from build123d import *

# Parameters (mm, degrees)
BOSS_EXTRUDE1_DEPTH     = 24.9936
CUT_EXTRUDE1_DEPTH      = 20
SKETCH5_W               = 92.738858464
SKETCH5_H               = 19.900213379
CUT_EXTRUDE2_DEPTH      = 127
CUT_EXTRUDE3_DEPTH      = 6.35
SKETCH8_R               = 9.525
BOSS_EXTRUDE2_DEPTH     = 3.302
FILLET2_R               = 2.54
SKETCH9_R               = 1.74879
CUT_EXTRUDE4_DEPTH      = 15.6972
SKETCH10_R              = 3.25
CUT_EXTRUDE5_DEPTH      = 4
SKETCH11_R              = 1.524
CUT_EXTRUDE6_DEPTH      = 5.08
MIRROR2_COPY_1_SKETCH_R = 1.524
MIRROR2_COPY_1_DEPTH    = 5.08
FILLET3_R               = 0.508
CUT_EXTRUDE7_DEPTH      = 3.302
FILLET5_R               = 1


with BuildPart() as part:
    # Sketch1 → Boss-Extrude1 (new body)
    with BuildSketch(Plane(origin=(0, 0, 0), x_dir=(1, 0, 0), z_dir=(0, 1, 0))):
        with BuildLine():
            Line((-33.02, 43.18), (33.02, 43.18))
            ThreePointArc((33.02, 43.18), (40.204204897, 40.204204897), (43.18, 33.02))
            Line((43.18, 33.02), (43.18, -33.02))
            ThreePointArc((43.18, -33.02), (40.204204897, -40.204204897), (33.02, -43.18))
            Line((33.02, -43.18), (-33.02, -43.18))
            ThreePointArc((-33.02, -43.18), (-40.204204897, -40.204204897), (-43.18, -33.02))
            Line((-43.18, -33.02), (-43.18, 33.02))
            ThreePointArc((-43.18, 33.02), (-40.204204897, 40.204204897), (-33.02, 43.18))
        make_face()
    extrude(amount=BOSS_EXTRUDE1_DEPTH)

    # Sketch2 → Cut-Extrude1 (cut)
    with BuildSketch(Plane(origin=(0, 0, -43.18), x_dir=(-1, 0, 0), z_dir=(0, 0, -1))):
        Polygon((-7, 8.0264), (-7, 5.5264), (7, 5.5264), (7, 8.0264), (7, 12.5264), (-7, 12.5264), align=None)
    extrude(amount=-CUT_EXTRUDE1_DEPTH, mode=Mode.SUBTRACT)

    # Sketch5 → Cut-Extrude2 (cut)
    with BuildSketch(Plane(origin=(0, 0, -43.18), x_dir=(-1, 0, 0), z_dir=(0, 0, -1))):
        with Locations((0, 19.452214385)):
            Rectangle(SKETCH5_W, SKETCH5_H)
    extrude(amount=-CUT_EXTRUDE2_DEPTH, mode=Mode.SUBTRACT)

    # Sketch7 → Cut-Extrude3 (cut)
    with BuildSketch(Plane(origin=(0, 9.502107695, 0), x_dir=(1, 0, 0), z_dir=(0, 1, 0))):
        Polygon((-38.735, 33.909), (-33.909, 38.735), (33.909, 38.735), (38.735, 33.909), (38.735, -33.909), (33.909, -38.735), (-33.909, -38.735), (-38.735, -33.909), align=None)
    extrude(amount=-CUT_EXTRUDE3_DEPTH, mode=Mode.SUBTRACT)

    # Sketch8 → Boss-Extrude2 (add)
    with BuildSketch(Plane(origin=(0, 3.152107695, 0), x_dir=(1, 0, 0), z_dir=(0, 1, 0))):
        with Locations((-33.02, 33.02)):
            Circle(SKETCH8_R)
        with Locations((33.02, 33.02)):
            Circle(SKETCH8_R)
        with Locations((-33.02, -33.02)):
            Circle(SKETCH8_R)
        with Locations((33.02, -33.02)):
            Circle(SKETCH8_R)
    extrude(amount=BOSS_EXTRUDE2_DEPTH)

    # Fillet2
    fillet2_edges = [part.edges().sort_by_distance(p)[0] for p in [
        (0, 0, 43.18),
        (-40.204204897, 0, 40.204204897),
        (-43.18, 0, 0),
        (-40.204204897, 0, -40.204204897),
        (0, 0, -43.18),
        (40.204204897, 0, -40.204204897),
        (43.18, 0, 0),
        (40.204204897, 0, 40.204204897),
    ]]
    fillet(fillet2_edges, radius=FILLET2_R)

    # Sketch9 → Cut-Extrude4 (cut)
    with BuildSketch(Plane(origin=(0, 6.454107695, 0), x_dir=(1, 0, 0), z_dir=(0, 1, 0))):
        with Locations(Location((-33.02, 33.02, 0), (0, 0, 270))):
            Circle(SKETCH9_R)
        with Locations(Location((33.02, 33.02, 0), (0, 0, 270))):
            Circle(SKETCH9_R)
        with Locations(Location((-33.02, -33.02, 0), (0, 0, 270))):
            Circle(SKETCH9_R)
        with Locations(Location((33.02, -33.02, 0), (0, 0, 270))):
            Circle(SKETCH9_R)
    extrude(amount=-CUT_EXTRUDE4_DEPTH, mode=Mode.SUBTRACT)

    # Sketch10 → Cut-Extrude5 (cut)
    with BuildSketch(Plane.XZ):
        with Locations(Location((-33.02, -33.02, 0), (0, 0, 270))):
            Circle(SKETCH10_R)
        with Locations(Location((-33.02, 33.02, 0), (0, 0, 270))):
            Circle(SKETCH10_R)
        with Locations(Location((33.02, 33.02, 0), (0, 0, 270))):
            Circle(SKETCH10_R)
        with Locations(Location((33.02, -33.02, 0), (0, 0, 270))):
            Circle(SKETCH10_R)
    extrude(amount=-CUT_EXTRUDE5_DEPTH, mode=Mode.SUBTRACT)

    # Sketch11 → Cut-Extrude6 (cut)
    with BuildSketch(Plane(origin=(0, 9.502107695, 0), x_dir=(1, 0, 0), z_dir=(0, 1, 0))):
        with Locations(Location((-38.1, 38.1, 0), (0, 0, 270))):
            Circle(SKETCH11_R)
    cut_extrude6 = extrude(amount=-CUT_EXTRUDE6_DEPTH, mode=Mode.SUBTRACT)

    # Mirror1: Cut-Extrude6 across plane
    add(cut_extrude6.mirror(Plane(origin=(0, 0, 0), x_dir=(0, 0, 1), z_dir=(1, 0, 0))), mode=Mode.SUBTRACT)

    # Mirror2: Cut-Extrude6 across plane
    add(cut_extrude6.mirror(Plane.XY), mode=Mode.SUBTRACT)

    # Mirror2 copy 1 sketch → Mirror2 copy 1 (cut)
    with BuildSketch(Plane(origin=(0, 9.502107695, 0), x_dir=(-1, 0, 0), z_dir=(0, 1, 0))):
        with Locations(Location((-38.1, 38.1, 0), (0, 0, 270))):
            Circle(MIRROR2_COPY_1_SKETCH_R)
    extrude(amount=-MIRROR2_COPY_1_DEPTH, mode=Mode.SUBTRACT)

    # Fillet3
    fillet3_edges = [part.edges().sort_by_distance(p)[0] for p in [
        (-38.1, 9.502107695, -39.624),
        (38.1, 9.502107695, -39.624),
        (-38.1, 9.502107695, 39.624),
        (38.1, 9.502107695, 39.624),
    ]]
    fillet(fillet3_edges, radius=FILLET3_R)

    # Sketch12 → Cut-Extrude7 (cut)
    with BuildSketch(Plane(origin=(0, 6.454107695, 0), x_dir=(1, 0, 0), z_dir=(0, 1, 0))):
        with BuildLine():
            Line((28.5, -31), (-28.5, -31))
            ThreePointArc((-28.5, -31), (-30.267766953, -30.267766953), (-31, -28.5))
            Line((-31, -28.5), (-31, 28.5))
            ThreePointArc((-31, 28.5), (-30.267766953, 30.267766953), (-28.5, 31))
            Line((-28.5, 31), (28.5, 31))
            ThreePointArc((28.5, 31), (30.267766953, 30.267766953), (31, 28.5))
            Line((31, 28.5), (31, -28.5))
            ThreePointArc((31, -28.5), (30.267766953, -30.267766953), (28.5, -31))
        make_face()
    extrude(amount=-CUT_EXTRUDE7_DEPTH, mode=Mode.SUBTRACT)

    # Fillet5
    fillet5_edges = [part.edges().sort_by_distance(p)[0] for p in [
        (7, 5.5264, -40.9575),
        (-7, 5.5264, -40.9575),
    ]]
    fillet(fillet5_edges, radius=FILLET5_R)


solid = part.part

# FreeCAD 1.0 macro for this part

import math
import FreeCAD as App
import Part
import Sketcher
Q = App.Units.Quantity


def edges_at(feature, points):
    """Names of the edges that pass closest to the given points."""
    edges = feature.Shape.Edges
    near = lambda p: min(range(len(edges)), key=lambda i: edges[i].distToShape(Part.Vertex(*p))[0])
    return sorted({f"Edge{near(p) + 1}" for p in points})

doc = App.newDocument("Part")
body = doc.addObject("PartDesign::Body", "Body")

sketch1 = body.newObject("Sketcher::SketchObject", "Sketch")
sketch1.AttachmentSupport = (doc.getObject("XZ_Plane"), [""])
sketch1.MapMode = "FlatFace"
sketch1.addGeometry(Part.LineSegment(App.Vector(33, -43, 0), App.Vector(-33, -43, 0)), False)
sketch1.addGeometry(Part.ArcOfCircle(Part.Circle(App.Vector(-33, -33, 0), App.Vector(0, 0, 1), 10), math.radians(180), math.radians(270)), False)
sketch1.addGeometry(Part.LineSegment(App.Vector(-43, -33, 0), App.Vector(-43, 33, 0)), False)
sketch1.addGeometry(Part.ArcOfCircle(Part.Circle(App.Vector(-33, 33, 0), App.Vector(0, 0, 1), 10), math.radians(90), math.radians(180)), False)
sketch1.addGeometry(Part.LineSegment(App.Vector(-33, 43, 0), App.Vector(33, 43, 0)), False)
sketch1.addGeometry(Part.ArcOfCircle(Part.Circle(App.Vector(33, 33, 0), App.Vector(0, 0, 1), 10), math.radians(0), math.radians(90)), False)
sketch1.addGeometry(Part.LineSegment(App.Vector(43, 33, 0), App.Vector(43, -33, 0)), False)
sketch1.addGeometry(Part.ArcOfCircle(Part.Circle(App.Vector(33, -33, 0), App.Vector(0, 0, 1), 10), math.radians(-90), math.radians(0)), False)
sketch1.addConstraint(Sketcher.Constraint("Tangent", 0, 2, 1, 2))
sketch1.addConstraint(Sketcher.Constraint("Tangent", 1, 1, 2, 1))
sketch1.addConstraint(Sketcher.Constraint("Tangent", 2, 2, 3, 2))
sketch1.addConstraint(Sketcher.Constraint("Tangent", 3, 1, 4, 1))
sketch1.addConstraint(Sketcher.Constraint("Tangent", 4, 2, 5, 2))
sketch1.addConstraint(Sketcher.Constraint("Tangent", 5, 1, 6, 1))
sketch1.addConstraint(Sketcher.Constraint("Tangent", 6, 2, 7, 2))
sketch1.addConstraint(Sketcher.Constraint("Tangent", 7, 1, 0, 1))
sketch1.addConstraint(Sketcher.Constraint("Horizontal", 0))
sketch1.addConstraint(Sketcher.Constraint("Vertical", 2))
sketch1.addConstraint(Sketcher.Constraint("Horizontal", 4))
sketch1.addConstraint(Sketcher.Constraint("Vertical", 6))
sketch1.addConstraint(Sketcher.Constraint("Equal", 1, 3))
sketch1.addConstraint(Sketcher.Constraint("Equal", 3, 5))
sketch1.addConstraint(Sketcher.Constraint("Equal", 5, 7))
sketch1.addConstraint(Sketcher.Constraint("Symmetric", 1, 3, 5, 3, -1, 1))
sketch1.addConstraint(Sketcher.Constraint("Equal", 4, 2))
sketch1.addConstraint(Sketcher.Constraint("Radius", 1, Q("0.4 in")))
sketch1.addConstraint(Sketcher.Constraint("DistanceX", 0, 2, 0, 1, Q("2.6 in")))
pad1 = body.newObject("PartDesign::Pad", "Pad")
pad1.Profile = sketch1
pad1.Length = Q("0.984 in")
pad1.Reversed = True

sketch2 = body.newObject("Sketcher::SketchObject", "Sketch001")
sketch2.AttachmentSupport = (doc.getObject("XY_Plane"), [""])
sketch2.MapMode = "FlatFace"
sketch2.AttachmentOffset = App.Placement(App.Vector(0, 0, -1.7 * 25.4), App.Rotation())
sketch2.addGeometry(Part.LineSegment(App.Vector(7, 6, 0), App.Vector(-7, 6, 0)), False)
sketch2.addGeometry(Part.LineSegment(App.Vector(-7, 6, 0), App.Vector(-7, 13, 0)), False)
sketch2.addGeometry(Part.LineSegment(App.Vector(-7, 13, 0), App.Vector(7, 13, 0)), False)
sketch2.addGeometry(Part.LineSegment(App.Vector(7, 13, 0), App.Vector(7, 6, 0)), False)
sketch2.addConstraint(Sketcher.Constraint("Coincident", 0, 2, 1, 1))
sketch2.addConstraint(Sketcher.Constraint("Coincident", 1, 2, 2, 1))
sketch2.addConstraint(Sketcher.Constraint("Coincident", 2, 2, 3, 1))
sketch2.addConstraint(Sketcher.Constraint("Coincident", 3, 2, 0, 1))
sketch2.addConstraint(Sketcher.Constraint("Horizontal", 0))
sketch2.addConstraint(Sketcher.Constraint("Vertical", 1))
sketch2.addConstraint(Sketcher.Constraint("Horizontal", 2))
sketch2.addConstraint(Sketcher.Constraint("Vertical", 3))
sketch2.addConstraint(Sketcher.Constraint("DistanceX", 0, 2, 0, 1, 14.0))
sketch2.addConstraint(Sketcher.Constraint("DistanceY", 1, 1, 1, 2, 7.0))
sketch2.addConstraint(Sketcher.Constraint("DistanceX", 0, 2, -1, 1, 7.0))
sketch2.addConstraint(Sketcher.Constraint("DistanceY", -1, 1, 0, 2, 5.5264))
pocket1 = body.newObject("PartDesign::Pocket", "Pocket")
pocket1.Profile = sketch2
pocket1.Length = 20
pocket1.Reversed = True

sketch3 = body.newObject("Sketcher::SketchObject", "Sketch002")
sketch3.AttachmentSupport = (doc.getObject("XY_Plane"), [""])
sketch3.MapMode = "FlatFace"
sketch3.AttachmentOffset = App.Placement(App.Vector(0, 0, -1.7 * 25.4), App.Rotation())
sketch3.addGeometry(Part.LineSegment(App.Vector(46, 29, 0), App.Vector(46, 10, 0)), False)
sketch3.addGeometry(Part.LineSegment(App.Vector(46, 10, 0), App.Vector(-46, 10, 0)), False)
sketch3.addGeometry(Part.LineSegment(App.Vector(-46, 10, 0), App.Vector(-46, 29, 0)), False)
sketch3.addGeometry(Part.LineSegment(App.Vector(-46, 29, 0), App.Vector(46, 29, 0)), False)
sketch3.addConstraint(Sketcher.Constraint("Coincident", 0, 2, 1, 1))
sketch3.addConstraint(Sketcher.Constraint("Coincident", 1, 2, 2, 1))
sketch3.addConstraint(Sketcher.Constraint("Coincident", 2, 2, 3, 1))
sketch3.addConstraint(Sketcher.Constraint("Coincident", 3, 2, 0, 1))
sketch3.addConstraint(Sketcher.Constraint("Vertical", 0))
sketch3.addConstraint(Sketcher.Constraint("Horizontal", 1))
sketch3.addConstraint(Sketcher.Constraint("Vertical", 2))
sketch3.addConstraint(Sketcher.Constraint("Horizontal", 3))
sketch3.addConstraint(Sketcher.Constraint("DistanceX", 1, 2, 1, 1, 92.738858))
sketch3.addConstraint(Sketcher.Constraint("DistanceY", 0, 2, 0, 1, 19.900213))
sketch3.addConstraint(Sketcher.Constraint("DistanceX", -1, 1, 0, 2, 46.369429))
sketch3.addConstraint(Sketcher.Constraint("DistanceY", -1, 1, 2, 2, 29.402321))
pocket2 = body.newObject("PartDesign::Pocket", "Pocket001")
pocket2.Profile = sketch3
pocket2.Length = Q("5 in")
pocket2.Reversed = True

sketch4 = body.newObject("Sketcher::SketchObject", "Sketch003")
sketch4.AttachmentSupport = (doc.getObject("XZ_Plane"), [""])
sketch4.MapMode = "FlatFace"
sketch4.AttachmentOffset = App.Placement(App.Vector(0, 0, -9.502108), App.Rotation())
sketch4.addGeometry(Part.LineSegment(App.Vector(-34, -39, 0), App.Vector(-39, -34, 0)), False)
sketch4.addGeometry(Part.LineSegment(App.Vector(-39, -34, 0), App.Vector(-39, 34, 0)), False)
sketch4.addGeometry(Part.LineSegment(App.Vector(-39, 34, 0), App.Vector(-34, 39, 0)), False)
sketch4.addGeometry(Part.LineSegment(App.Vector(-34, 39, 0), App.Vector(34, 39, 0)), False)
sketch4.addGeometry(Part.LineSegment(App.Vector(34, 39, 0), App.Vector(39, 34, 0)), False)
sketch4.addGeometry(Part.LineSegment(App.Vector(39, 34, 0), App.Vector(39, -34, 0)), False)
sketch4.addGeometry(Part.LineSegment(App.Vector(39, -34, 0), App.Vector(34, -39, 0)), False)
sketch4.addGeometry(Part.LineSegment(App.Vector(34, -39, 0), App.Vector(-34, -39, 0)), False)
sketch4.addConstraint(Sketcher.Constraint("Coincident", 0, 2, 1, 1))
sketch4.addConstraint(Sketcher.Constraint("Coincident", 1, 2, 2, 1))
sketch4.addConstraint(Sketcher.Constraint("Coincident", 2, 2, 3, 1))
sketch4.addConstraint(Sketcher.Constraint("Coincident", 3, 2, 4, 1))
sketch4.addConstraint(Sketcher.Constraint("Coincident", 4, 2, 5, 1))
sketch4.addConstraint(Sketcher.Constraint("Coincident", 5, 2, 6, 1))
sketch4.addConstraint(Sketcher.Constraint("Coincident", 6, 2, 7, 1))
sketch4.addConstraint(Sketcher.Constraint("Coincident", 7, 2, 0, 1))
sketch4.addConstraint(Sketcher.Constraint("Vertical", 1))
sketch4.addConstraint(Sketcher.Constraint("Horizontal", 3))
sketch4.addConstraint(Sketcher.Constraint("Vertical", 5))
sketch4.addConstraint(Sketcher.Constraint("Horizontal", 7))
sketch4.addConstraint(Sketcher.Constraint("Symmetric", 0, 2, 4, 2, -1, 1))
sketch4.addConstraint(Sketcher.Constraint("Symmetric", 2, 2, 6, 2, -1, 1))
sketch4.addConstraint(Sketcher.Constraint("Perpendicular", 0, 2))
sketch4.addConstraint(Sketcher.Constraint("Perpendicular", 2, 4))
sketch4.addConstraint(Sketcher.Constraint("Perpendicular", 4, 6))
sketch4.addConstraint(Sketcher.Constraint("Horizontal", 1, 2, 4, 2))
sketch4.addConstraint(Sketcher.Constraint("Vertical", 3, 2, 6, 2))
sketch4.addConstraint(Sketcher.Constraint("Equal", 7, 1))
sketch4.addConstraint(Sketcher.Constraint("DistanceX", 3, 1, 3, 2, Q("2.67 in")))
sketch4.addConstraint(Sketcher.Constraint("DistanceX", 1, 2, 2, 2, Q("0.19 in")))
pocket3 = body.newObject("PartDesign::Pocket", "Pocket002")
pocket3.Profile = sketch4
pocket3.Length = Q("0.25 in")
pocket3.Reversed = True

sketch5 = body.newObject("Sketcher::SketchObject", "Sketch004")
sketch5.AttachmentSupport = (doc.getObject("XZ_Plane"), [""])
sketch5.MapMode = "FlatFace"
sketch5.AttachmentOffset = App.Placement(App.Vector(0, 0, -3.152108), App.Rotation())
sketch5.addGeometry(Part.Circle(App.Vector(-33, -33, 0), App.Vector(0, 0, 1), 10), False)
sketch5.addGeometry(Part.Circle(App.Vector(33, -33, 0), App.Vector(0, 0, 1), 10), False)
sketch5.addGeometry(Part.Circle(App.Vector(-33, 33, 0), App.Vector(0, 0, 1), 10), False)
sketch5.addGeometry(Part.Circle(App.Vector(33, 33, 0), App.Vector(0, 0, 1), 10), False)
sketch5.addConstraint(Sketcher.Constraint("Equal", 0, 1))
sketch5.addConstraint(Sketcher.Constraint("Equal", 1, 2))
sketch5.addConstraint(Sketcher.Constraint("Equal", 2, 3))
sketch5.addConstraint(Sketcher.Constraint("Symmetric", 1, 3, 2, 3, -1, 1))
sketch5.addConstraint(Sketcher.Constraint("Symmetric", 0, 3, 3, 3, -1, 1))
sketch5.addConstraint(Sketcher.Constraint("Symmetric", 0, 3, 1, 3, -2))
sketch5.addConstraint(Sketcher.Constraint("Diameter", 0, Q("0.75 in")))
sketch5.addConstraint(Sketcher.Constraint("DistanceX", 0, 3, -1, 1, Q("1.3 in")))
sketch5.addConstraint(Sketcher.Constraint("DistanceY", 0, 3, -1, 1, Q("1.3 in")))
pad2 = body.newObject("PartDesign::Pad", "Pad001")
pad2.Profile = sketch5
pad2.Length = Q("0.13 in")
pad2.Reversed = True
doc.recompute()

fillet = body.newObject("PartDesign::Fillet", "Fillet")
fillet.Base = (pad2, edges_at(pad2, [
    (0, 0, 43.18),
    (-40.204, 0, 40.204),
    (-43.18, 0, 0),
    (-40.204, 0, -40.204),
    (0, 0, -43.18),
    (40.204, 0, -40.204),
    (43.18, 0, 0),
    (40.204, 0, 40.204),
]))
fillet.Radius = Q("0.1 in")

sketch6 = body.newObject("Sketcher::SketchObject", "Sketch005")
sketch6.AttachmentSupport = (doc.getObject("XZ_Plane"), [""])
sketch6.MapMode = "FlatFace"
sketch6.AttachmentOffset = App.Placement(App.Vector(0, 0, -6.454108), App.Rotation())
sketch6.addGeometry(Part.Circle(App.Vector(-33, -33, 0), App.Vector(0, 0, 1), 1.7), False)
sketch6.addGeometry(Part.Circle(App.Vector(33, -33, 0), App.Vector(0, 0, 1), 1.7), False)
sketch6.addGeometry(Part.Circle(App.Vector(-33, 33, 0), App.Vector(0, 0, 1), 1.7), False)
sketch6.addGeometry(Part.Circle(App.Vector(33, 33, 0), App.Vector(0, 0, 1), 1.7), False)
sketch6.addConstraint(Sketcher.Constraint("Equal", 0, 1))
sketch6.addConstraint(Sketcher.Constraint("Equal", 1, 2))
sketch6.addConstraint(Sketcher.Constraint("Equal", 2, 3))
sketch6.addConstraint(Sketcher.Constraint("Symmetric", 1, 3, 2, 3, -1, 1))
sketch6.addConstraint(Sketcher.Constraint("Symmetric", 0, 3, 3, 3, -1, 1))
sketch6.addConstraint(Sketcher.Constraint("Symmetric", 0, 3, 1, 3, -2))
sketch6.addConstraint(Sketcher.Constraint("Diameter", 0, Q("0.1377 in")))
sketch6.addConstraint(Sketcher.Constraint("DistanceX", 0, 3, -1, 1, Q("1.3 in")))
sketch6.addConstraint(Sketcher.Constraint("DistanceY", 0, 3, -1, 1, Q("1.3 in")))
pocket4 = body.newObject("PartDesign::Pocket", "Pocket003")
pocket4.Profile = sketch6
pocket4.Length = Q("0.618 in")
pocket4.Reversed = True

sketch7 = body.newObject("Sketcher::SketchObject", "Sketch006")
sketch7.AttachmentSupport = (doc.getObject("XZ_Plane"), [""])
sketch7.MapMode = "FlatFace"
sketch7.addGeometry(Part.Circle(App.Vector(-33, -33, 0), App.Vector(0, 0, 1), 3.2), False)
sketch7.addGeometry(Part.Circle(App.Vector(-33, 33, 0), App.Vector(0, 0, 1), 3.2), False)
sketch7.addGeometry(Part.Circle(App.Vector(33, 33, 0), App.Vector(0, 0, 1), 3.2), False)
sketch7.addGeometry(Part.Circle(App.Vector(33, -33, 0), App.Vector(0, 0, 1), 3.2), False)
sketch7.addConstraint(Sketcher.Constraint("Equal", 0, 1))
sketch7.addConstraint(Sketcher.Constraint("Equal", 1, 2))
sketch7.addConstraint(Sketcher.Constraint("Equal", 2, 3))
sketch7.addConstraint(Sketcher.Constraint("Symmetric", 0, 3, 2, 3, -1, 1))
sketch7.addConstraint(Sketcher.Constraint("Symmetric", 1, 3, 3, 3, -1, 1))
sketch7.addConstraint(Sketcher.Constraint("Symmetric", 1, 3, 2, 3, -2))
sketch7.addConstraint(Sketcher.Constraint("DistanceX", 0, 3, -1, 1, Q("1.3 in")))
sketch7.addConstraint(Sketcher.Constraint("DistanceY", 0, 3, -1, 1, Q("1.3 in")))
sketch7.addConstraint(Sketcher.Constraint("Diameter", 0, 6.5))
pocket5 = body.newObject("PartDesign::Pocket", "Pocket004")
pocket5.Profile = sketch7
pocket5.Length = 4

sketch8 = body.newObject("Sketcher::SketchObject", "Sketch007")
sketch8.AttachmentSupport = (doc.getObject("XZ_Plane"), [""])
sketch8.MapMode = "FlatFace"
sketch8.AttachmentOffset = App.Placement(App.Vector(0, 0, -9.502108), App.Rotation())
sketch8.addGeometry(Part.Circle(App.Vector(-38.1, -38.1, 0), App.Vector(0, 0, 1), 1.5), False)
sketch8.addConstraint(Sketcher.Constraint("Diameter", 0, Q("0.12 in")))
sketch8.addConstraint(Sketcher.Constraint("DistanceX", 0, 3, -1, 1, Q("1.5 in")))
sketch8.addConstraint(Sketcher.Constraint("DistanceY", 0, 3, -1, 1, Q("1.5 in")))
pocket6 = body.newObject("PartDesign::Pocket", "Pocket005")
pocket6.Profile = sketch8
pocket6.Length = Q("0.2 in")
pocket6.Reversed = True
doc.recompute()

mirrored = body.newObject("PartDesign::Mirrored", "Mirrored")
mirrored.Originals = [pocket6]
mirrored.MirrorPlane = (doc.getObject("YZ_Plane"), [""])
body.Tip = mirrored
doc.recompute()

mirrored2 = body.newObject("PartDesign::Mirrored", "Mirrored001")
mirrored2.Originals = [pocket6]
mirrored2.MirrorPlane = (doc.getObject("XY_Plane"), [""])
body.Tip = mirrored2

sketch9 = body.newObject("Sketcher::SketchObject", "Sketch008")
sketch9.AttachmentSupport = (doc.getObject("XZ_Plane"), [""])
sketch9.MapMode = "FlatFace"
sketch9.AttachmentOffset = App.Placement(App.Vector(0, 0, -9.502108), App.Rotation())
sketch9.addGeometry(Part.Circle(App.Vector(38.1, 38.1, 0), App.Vector(0, 0, 1), 1.5), False)
sketch9.addConstraint(Sketcher.Constraint("Diameter", 0, Q("0.12 in")))
sketch9.addConstraint(Sketcher.Constraint("DistanceX", -1, 1, 0, 3, Q("1.5 in")))
sketch9.addConstraint(Sketcher.Constraint("DistanceY", -1, 1, 0, 3, Q("1.5 in")))
pocket7 = body.newObject("PartDesign::Pocket", "Pocket006")
pocket7.Profile = sketch9
pocket7.Length = Q("0.2 in")
pocket7.Reversed = True
doc.recompute()

fillet2 = body.newObject("PartDesign::Fillet", "Fillet001")
fillet2.Base = (pocket7, edges_at(pocket7, [
    (-38.1, 9.502, -39.624),
    (38.1, 9.502, -39.624),
    (-38.1, 9.502, 39.624),
    (38.1, 9.502, 39.624),
]))
fillet2.Radius = Q("0.02 in")

sketch10 = body.newObject("Sketcher::SketchObject", "Sketch009")
sketch10.AttachmentSupport = (doc.getObject("XZ_Plane"), [""])
sketch10.MapMode = "FlatFace"
sketch10.AttachmentOffset = App.Placement(App.Vector(0, 0, -6.454108), App.Rotation())
sketch10.addGeometry(Part.LineSegment(App.Vector(-28.5, 31, 0), App.Vector(28.5, 31, 0)), False)
sketch10.addGeometry(Part.ArcOfCircle(Part.Circle(App.Vector(28.5, 28.5, 0), App.Vector(0, 0, 1), 2.5), math.radians(0), math.radians(90)), False)
sketch10.addGeometry(Part.LineSegment(App.Vector(31, 28.5, 0), App.Vector(31, -28.5, 0)), False)
sketch10.addGeometry(Part.ArcOfCircle(Part.Circle(App.Vector(28.5, -28.5, 0), App.Vector(0, 0, 1), 2.5), math.radians(-90), math.radians(0)), False)
sketch10.addGeometry(Part.LineSegment(App.Vector(28.5, -31, 0), App.Vector(-28.5, -31, 0)), False)
sketch10.addGeometry(Part.ArcOfCircle(Part.Circle(App.Vector(-28.5, -28.5, 0), App.Vector(0, 0, 1), 2.5), math.radians(180), math.radians(270)), False)
sketch10.addGeometry(Part.LineSegment(App.Vector(-31, -28.5, 0), App.Vector(-31, 28.5, 0)), False)
sketch10.addGeometry(Part.ArcOfCircle(Part.Circle(App.Vector(-28.5, 28.5, 0), App.Vector(0, 0, 1), 2.5), math.radians(90), math.radians(180)), False)
sketch10.addConstraint(Sketcher.Constraint("Tangent", 0, 2, 1, 2))
sketch10.addConstraint(Sketcher.Constraint("Tangent", 1, 1, 2, 1))
sketch10.addConstraint(Sketcher.Constraint("Tangent", 2, 2, 3, 2))
sketch10.addConstraint(Sketcher.Constraint("Tangent", 3, 1, 4, 1))
sketch10.addConstraint(Sketcher.Constraint("Tangent", 4, 2, 5, 2))
sketch10.addConstraint(Sketcher.Constraint("Tangent", 5, 1, 6, 1))
sketch10.addConstraint(Sketcher.Constraint("Tangent", 6, 2, 7, 2))
sketch10.addConstraint(Sketcher.Constraint("Tangent", 7, 1, 0, 1))
sketch10.addConstraint(Sketcher.Constraint("Horizontal", 0))
sketch10.addConstraint(Sketcher.Constraint("Vertical", 2))
sketch10.addConstraint(Sketcher.Constraint("Horizontal", 4))
sketch10.addConstraint(Sketcher.Constraint("Vertical", 6))
sketch10.addConstraint(Sketcher.Constraint("Equal", 1, 3))
sketch10.addConstraint(Sketcher.Constraint("Equal", 3, 5))
sketch10.addConstraint(Sketcher.Constraint("Equal", 5, 7))
sketch10.addConstraint(Sketcher.Constraint("Symmetric", 1, 3, 5, 3, -1, 1))
sketch10.addConstraint(Sketcher.Constraint("Equal", 4, 2))
sketch10.addConstraint(Sketcher.Constraint("Radius", 1, 2.5))
sketch10.addConstraint(Sketcher.Constraint("DistanceX", 0, 1, 0, 2, 57.0))
pocket8 = body.newObject("PartDesign::Pocket", "Pocket007")
pocket8.Profile = sketch10
pocket8.Length = Q("0.13 in")
pocket8.Reversed = True
doc.recompute()

fillet3 = body.newObject("PartDesign::Fillet", "Fillet002")
fillet3.Base = (pocket8, edges_at(pocket8, [(7, 5.526, -40.958), (-7, 5.526, -40.958)]))
fillet3.Radius = 1

doc.recompute()
